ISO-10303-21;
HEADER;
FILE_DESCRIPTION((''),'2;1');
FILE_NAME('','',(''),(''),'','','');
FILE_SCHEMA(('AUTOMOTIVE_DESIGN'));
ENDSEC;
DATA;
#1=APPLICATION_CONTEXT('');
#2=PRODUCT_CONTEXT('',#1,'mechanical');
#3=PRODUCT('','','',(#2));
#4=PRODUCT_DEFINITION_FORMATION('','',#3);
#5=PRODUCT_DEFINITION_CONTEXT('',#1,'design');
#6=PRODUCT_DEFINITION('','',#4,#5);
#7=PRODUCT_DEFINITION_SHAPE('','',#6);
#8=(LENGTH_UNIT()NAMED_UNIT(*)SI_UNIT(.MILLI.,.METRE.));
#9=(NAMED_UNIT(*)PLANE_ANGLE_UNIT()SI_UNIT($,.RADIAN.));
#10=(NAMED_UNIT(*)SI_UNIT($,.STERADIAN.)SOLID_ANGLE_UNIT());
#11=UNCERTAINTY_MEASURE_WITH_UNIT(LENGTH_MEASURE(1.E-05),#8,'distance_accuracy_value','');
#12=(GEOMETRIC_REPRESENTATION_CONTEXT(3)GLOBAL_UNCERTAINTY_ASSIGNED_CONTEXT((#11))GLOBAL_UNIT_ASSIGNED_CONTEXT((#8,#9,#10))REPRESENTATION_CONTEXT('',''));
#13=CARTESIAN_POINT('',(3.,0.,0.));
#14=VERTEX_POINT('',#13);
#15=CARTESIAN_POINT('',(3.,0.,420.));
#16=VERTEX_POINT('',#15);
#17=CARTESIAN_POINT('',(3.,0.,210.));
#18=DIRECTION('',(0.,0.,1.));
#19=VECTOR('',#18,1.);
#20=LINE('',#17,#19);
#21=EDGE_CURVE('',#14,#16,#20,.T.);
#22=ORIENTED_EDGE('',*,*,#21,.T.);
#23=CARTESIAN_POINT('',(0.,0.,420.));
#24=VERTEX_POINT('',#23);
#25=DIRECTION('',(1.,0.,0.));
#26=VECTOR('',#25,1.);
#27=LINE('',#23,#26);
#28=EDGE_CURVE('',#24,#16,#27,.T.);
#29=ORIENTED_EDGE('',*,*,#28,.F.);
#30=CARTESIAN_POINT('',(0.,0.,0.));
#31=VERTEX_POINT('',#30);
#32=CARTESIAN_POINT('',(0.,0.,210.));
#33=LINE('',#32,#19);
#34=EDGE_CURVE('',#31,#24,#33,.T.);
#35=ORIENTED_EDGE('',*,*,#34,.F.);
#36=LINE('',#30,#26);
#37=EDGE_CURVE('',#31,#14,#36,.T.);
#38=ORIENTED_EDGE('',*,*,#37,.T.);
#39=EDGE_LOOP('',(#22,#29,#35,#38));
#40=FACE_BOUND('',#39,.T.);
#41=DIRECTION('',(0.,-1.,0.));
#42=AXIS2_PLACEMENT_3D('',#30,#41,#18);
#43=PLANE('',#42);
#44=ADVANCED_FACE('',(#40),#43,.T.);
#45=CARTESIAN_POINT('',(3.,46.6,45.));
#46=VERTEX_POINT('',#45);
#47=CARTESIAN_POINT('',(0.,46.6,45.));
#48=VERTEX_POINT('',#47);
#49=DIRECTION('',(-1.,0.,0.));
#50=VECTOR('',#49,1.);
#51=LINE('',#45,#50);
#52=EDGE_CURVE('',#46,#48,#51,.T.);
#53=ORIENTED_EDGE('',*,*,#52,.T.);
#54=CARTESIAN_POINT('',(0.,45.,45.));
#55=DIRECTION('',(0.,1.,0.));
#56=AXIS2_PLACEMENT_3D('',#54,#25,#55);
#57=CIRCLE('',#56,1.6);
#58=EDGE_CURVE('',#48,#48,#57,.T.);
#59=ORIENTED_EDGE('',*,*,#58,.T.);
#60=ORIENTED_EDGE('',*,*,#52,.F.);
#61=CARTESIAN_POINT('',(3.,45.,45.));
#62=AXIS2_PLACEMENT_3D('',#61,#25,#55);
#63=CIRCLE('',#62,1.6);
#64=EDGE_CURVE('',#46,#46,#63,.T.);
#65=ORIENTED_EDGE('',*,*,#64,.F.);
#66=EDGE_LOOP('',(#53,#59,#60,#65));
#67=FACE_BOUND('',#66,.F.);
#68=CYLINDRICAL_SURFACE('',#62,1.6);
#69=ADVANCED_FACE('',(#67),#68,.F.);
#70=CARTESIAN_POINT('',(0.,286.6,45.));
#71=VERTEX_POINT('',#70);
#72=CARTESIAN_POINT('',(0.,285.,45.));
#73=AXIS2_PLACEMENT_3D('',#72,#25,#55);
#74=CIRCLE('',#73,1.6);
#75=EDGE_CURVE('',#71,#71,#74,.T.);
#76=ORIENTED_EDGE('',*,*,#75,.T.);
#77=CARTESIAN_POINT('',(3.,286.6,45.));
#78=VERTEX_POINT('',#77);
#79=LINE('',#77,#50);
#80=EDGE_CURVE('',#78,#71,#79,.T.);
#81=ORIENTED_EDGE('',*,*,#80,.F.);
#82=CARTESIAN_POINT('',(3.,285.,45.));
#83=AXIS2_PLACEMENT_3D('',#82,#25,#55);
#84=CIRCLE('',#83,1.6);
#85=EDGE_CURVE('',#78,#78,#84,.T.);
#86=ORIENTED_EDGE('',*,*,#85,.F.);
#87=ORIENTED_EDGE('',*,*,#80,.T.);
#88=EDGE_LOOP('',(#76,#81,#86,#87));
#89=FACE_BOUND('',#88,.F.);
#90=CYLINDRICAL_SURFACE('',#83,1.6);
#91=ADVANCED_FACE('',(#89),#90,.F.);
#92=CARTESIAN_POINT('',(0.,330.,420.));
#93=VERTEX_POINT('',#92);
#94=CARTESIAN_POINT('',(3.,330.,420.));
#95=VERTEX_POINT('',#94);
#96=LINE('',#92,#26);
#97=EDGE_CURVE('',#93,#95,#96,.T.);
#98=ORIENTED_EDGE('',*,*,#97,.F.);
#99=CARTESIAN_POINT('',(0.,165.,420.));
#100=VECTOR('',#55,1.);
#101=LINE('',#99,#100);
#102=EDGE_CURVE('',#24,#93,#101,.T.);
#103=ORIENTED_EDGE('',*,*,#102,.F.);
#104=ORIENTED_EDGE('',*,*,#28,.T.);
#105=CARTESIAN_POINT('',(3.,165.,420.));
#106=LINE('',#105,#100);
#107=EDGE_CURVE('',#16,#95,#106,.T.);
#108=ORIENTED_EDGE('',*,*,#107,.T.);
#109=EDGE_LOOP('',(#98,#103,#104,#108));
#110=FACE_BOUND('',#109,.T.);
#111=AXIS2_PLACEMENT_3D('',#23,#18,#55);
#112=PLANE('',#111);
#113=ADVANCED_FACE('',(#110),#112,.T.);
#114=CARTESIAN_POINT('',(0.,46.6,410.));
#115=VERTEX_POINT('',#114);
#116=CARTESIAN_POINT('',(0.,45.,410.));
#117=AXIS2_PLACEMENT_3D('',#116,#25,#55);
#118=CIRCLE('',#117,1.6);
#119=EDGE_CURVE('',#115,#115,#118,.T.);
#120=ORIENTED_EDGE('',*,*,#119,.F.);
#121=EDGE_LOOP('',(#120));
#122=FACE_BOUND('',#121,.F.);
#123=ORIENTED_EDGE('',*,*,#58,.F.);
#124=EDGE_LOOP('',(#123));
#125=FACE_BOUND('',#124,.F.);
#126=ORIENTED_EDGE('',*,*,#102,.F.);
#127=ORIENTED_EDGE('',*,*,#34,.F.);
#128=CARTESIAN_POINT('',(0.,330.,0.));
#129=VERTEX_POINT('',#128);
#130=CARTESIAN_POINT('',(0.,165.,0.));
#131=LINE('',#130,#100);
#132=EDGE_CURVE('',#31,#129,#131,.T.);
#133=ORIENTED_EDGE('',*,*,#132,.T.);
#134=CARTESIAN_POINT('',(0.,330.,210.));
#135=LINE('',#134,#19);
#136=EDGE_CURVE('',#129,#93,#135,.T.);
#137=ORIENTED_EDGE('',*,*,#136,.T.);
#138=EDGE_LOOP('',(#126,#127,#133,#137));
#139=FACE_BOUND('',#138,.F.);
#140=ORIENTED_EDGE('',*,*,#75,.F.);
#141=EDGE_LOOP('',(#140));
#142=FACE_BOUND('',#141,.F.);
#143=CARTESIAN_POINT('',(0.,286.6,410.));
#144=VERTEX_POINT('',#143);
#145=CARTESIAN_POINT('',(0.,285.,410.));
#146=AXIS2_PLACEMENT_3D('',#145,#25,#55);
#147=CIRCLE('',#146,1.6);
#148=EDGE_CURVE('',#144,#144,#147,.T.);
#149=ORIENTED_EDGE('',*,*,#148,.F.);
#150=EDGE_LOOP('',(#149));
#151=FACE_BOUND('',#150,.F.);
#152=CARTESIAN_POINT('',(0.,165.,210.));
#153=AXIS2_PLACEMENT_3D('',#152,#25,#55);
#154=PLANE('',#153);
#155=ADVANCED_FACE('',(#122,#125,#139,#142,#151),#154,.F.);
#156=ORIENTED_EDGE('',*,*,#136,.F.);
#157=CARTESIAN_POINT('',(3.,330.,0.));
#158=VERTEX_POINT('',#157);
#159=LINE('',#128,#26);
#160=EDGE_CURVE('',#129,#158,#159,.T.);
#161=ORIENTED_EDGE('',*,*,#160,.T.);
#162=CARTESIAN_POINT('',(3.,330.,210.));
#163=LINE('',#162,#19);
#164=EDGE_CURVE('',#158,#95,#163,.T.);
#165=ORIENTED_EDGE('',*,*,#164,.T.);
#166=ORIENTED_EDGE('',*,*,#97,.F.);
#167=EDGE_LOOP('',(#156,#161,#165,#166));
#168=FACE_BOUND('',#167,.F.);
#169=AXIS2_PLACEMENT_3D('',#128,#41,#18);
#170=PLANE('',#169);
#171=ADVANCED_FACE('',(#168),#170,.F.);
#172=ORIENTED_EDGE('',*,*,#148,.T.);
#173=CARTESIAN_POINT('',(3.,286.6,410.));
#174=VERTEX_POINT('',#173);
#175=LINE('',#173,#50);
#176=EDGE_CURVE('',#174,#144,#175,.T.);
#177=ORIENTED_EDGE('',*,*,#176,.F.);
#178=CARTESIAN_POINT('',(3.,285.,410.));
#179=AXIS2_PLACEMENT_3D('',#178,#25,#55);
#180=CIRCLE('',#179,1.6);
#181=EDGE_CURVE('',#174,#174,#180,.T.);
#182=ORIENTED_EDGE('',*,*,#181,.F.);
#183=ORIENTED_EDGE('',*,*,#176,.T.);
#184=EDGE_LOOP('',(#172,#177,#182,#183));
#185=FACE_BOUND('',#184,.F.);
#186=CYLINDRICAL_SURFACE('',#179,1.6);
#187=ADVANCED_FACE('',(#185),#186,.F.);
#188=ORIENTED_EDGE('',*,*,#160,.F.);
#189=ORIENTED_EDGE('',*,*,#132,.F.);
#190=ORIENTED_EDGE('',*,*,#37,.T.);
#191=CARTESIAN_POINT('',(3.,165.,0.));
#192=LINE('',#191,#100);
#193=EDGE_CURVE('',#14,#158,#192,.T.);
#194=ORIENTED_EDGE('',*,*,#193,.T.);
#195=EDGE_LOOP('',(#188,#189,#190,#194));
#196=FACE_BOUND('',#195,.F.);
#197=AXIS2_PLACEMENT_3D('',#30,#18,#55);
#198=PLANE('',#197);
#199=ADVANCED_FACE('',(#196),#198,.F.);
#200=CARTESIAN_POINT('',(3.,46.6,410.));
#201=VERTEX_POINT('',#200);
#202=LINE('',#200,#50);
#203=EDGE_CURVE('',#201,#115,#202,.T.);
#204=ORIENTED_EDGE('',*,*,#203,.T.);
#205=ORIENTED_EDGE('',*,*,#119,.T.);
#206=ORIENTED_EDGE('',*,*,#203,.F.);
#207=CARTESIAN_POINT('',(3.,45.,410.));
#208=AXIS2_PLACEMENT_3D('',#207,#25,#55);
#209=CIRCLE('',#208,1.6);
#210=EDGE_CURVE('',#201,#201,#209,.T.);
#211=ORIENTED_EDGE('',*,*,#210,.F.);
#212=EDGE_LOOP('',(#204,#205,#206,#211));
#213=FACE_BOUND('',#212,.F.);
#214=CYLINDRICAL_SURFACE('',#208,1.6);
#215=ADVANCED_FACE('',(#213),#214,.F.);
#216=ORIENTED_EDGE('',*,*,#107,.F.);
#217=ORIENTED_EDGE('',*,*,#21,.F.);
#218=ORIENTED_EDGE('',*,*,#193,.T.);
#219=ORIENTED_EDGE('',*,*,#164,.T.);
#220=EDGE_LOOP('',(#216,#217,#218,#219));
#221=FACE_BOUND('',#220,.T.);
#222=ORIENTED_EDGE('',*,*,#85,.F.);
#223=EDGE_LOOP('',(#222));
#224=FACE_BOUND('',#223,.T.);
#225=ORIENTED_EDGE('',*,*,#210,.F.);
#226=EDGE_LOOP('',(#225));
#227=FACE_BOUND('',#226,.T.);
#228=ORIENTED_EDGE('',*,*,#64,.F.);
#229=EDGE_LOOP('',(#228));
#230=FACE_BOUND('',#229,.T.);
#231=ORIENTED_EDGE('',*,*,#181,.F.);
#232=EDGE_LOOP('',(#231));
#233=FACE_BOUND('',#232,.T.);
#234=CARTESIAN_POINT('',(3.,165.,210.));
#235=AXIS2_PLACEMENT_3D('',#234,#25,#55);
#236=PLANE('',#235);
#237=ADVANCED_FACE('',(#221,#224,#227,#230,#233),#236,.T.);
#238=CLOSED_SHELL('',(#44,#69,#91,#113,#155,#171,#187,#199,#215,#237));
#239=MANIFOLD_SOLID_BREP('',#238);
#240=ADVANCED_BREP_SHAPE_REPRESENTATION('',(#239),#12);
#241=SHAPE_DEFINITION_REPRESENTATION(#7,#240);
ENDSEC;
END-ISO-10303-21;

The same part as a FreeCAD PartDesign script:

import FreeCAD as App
import Part
import Sketcher

V = App.Vector


def add_polygon(sketch, points):
    """Adds a closed chain of lines whose ends are joined by coincident constraints."""
    first, n = sketch.GeometryCount, len(points)
    for a, b in zip(points, points[1:] + points[:1]):
        sketch.addGeometry(Part.LineSegment(App.Vector(*a, 0), App.Vector(*b, 0)), False)
    for i in range(n):
        sketch.addConstraint(Sketcher.Constraint("Coincident", first + i, 2, first + (i + 1) % n, 1))

doc = App.newDocument("Part")
body = doc.addObject("PartDesign::Body", "Body")

# Sketch on YZ plane
sketch1 = doc.addObject("Sketcher::SketchObject", "Sketch")
body.addObject(sketch1)
sketch1.AttachmentSupport = (doc.YZ_Plane, [""])
sketch1.MapMode = "FlatFace"
add_polygon(sketch1, [(0, 420), (0, 0), (330, 0), (330, 420)])  # lines 0-3
sketch1.addConstraint([
    Sketcher.Constraint("Vertical", 0),
    Sketcher.Constraint("Horizontal", 1),
    Sketcher.Constraint("Vertical", 2),
    Sketcher.Constraint("Horizontal", 3),
    Sketcher.Constraint("Coincident", 0, 2, -1, 1),
    Sketcher.Constraint("DistanceX", 1, 1, 1, 2, 330.0),
    Sketcher.Constraint("DistanceY", 0, 2, 0, 1, 420.0),
])
pad1 = doc.addObject("PartDesign::Pad", "Pad")
body.addObject(pad1)
pad1.Profile = sketch1
pad1.Length = 3

# Sketch on YZ plane
sketch2 = doc.addObject("Sketcher::SketchObject", "Sketch001")
body.addObject(sketch2)
sketch2.AttachmentSupport = (doc.YZ_Plane, [""])
sketch2.MapMode = "FlatFace"
sketch2.AttachmentOffset = App.Placement(V(0, 0, 3), App.Rotation())
sketch2.addGeometry([
    Part.Circle(V(45, 410, 0), V(0, 0, 1), 1.6),
    Part.Circle(V(285, 410, 0), V(0, 0, 1), 1.6),
    Part.Circle(V(45, 45, 0), V(0, 0, 1), 1.6),
    Part.Circle(V(285, 45, 0), V(0, 0, 1), 1.6),
], False)
sketch2.addConstraint([
    Sketcher.Constraint("Equal", 0, 1),
    Sketcher.Constraint("Equal", 1, 2),
    Sketcher.Constraint("Equal", 2, 3),
    Sketcher.Constraint("Horizontal", 0, 3, 1, 3),
    Sketcher.Constraint("Horizontal", 2, 3, 3, 3),
    Sketcher.Constraint("Vertical", 0, 3, 2, 3),
    Sketcher.Constraint("Vertical", 1, 3, 3, 3),
    Sketcher.Constraint("Diameter", 0, 3.2),
    Sketcher.Constraint("DistanceX", -1, 1, 0, 3, 45.0),
    Sketcher.Constraint("DistanceY", -1, 1, 0, 3, 410.0),
    Sketcher.Constraint("DistanceX", -1, 1, 1, 3, 285.0),
    Sketcher.Constraint("DistanceY", -1, 1, 2, 3, 45.0),
])
pocket1 = doc.addObject("PartDesign::Pocket", "Pocket")
body.addObject(pocket1)
pocket1.Profile = sketch2
pocket1.Type = "ThroughAll"

doc.recompute()
